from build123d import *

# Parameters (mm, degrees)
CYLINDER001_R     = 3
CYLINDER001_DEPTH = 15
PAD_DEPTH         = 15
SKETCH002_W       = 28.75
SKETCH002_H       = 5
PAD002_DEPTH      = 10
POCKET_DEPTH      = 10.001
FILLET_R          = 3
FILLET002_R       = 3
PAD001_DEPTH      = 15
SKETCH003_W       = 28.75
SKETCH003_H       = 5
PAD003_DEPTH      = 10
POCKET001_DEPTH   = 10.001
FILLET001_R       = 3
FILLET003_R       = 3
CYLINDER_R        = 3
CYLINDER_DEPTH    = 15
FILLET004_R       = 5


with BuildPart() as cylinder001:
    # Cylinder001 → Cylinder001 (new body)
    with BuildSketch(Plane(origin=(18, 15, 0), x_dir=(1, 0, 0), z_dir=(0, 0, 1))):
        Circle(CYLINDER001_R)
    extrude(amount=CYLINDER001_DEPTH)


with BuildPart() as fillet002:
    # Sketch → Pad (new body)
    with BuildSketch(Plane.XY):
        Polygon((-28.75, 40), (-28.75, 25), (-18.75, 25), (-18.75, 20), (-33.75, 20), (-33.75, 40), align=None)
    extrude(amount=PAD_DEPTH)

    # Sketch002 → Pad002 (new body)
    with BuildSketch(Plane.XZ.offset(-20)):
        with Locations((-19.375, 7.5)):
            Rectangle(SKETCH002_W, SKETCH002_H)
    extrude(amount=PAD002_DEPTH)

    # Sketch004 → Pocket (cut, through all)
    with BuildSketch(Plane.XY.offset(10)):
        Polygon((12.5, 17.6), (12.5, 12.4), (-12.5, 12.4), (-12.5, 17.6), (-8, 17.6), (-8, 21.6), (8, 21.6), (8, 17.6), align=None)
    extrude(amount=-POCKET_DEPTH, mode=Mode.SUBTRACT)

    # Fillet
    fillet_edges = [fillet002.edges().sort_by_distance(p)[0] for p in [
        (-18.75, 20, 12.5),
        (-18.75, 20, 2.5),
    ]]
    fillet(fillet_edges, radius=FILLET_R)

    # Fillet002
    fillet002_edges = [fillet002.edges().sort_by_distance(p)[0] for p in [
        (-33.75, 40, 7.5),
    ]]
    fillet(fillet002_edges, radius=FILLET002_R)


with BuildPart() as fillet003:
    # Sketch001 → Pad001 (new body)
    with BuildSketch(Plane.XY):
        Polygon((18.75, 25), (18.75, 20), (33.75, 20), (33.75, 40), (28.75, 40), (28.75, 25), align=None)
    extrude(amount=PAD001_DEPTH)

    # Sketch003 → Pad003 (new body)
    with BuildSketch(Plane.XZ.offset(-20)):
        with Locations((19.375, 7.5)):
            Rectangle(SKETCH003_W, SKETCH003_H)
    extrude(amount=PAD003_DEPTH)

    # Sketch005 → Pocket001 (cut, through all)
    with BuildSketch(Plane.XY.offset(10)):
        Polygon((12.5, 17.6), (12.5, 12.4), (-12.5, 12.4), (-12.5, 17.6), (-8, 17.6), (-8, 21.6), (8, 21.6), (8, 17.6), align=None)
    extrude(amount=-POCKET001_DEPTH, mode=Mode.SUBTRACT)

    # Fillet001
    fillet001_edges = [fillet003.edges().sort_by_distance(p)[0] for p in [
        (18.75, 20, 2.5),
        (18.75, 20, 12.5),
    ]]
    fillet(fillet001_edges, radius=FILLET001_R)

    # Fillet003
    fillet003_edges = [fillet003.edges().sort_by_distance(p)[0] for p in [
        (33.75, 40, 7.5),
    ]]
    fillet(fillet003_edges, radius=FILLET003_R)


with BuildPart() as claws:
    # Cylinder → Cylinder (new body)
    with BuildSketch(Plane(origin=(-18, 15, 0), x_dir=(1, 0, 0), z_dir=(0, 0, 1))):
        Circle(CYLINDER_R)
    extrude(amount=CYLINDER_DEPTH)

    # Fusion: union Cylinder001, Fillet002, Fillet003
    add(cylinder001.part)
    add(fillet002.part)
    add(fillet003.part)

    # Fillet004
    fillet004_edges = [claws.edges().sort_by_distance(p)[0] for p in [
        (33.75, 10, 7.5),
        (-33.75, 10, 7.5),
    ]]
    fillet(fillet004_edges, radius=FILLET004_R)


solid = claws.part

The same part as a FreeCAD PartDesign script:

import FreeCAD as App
import Part
import Sketcher

V = App.Vector
Q = App.Units.Quantity


def edges_at(feature, points):
    """Names of the edges that pass closest to the given points."""
    edges = feature.Shape.Edges
    near = lambda p: min(range(len(edges)), key=lambda i: edges[i].distToShape(Part.Vertex(*p))[0])
    return sorted({f"Edge{near(p) + 1}" for p in points})


def add_polygon(sketch, points):
    """Adds a closed chain of lines whose ends are joined by coincident constraints."""
    first, n = sketch.GeometryCount, len(points)
    for a, b in zip(points, points[1:] + points[:1]):
        sketch.addGeometry(Part.LineSegment(App.Vector(*a, 0), App.Vector(*b, 0)), False)
    for i in range(n):
        sketch.addConstraint(Sketcher.Constraint("Coincident", first + i, 2, first + (i + 1) % n, 1))

doc = App.newDocument("Part")
body = doc.addObject("PartDesign::Body", "Body")

sketch1 = body.newObject("Sketcher::SketchObject", "Sketch")
sketch1.AttachmentSupport = (doc.getObject("XY_Plane"), [""])
sketch1.MapMode = "FlatFace"
sketch1.addGeometry(Part.Circle(V(18, 15, 0), V(0, 0, 1), 3), False)
sketch1.addConstraint(Sketcher.Constraint("Diameter", 0, Q("6 mm")))
sketch1.addConstraint(Sketcher.Constraint("DistanceX", -1, 1, 0, 3, Q("18 mm")))
sketch1.addConstraint(Sketcher.Constraint("DistanceY", -1, 1, 0, 3, Q("15 mm")))
pad1 = body.newObject("PartDesign::Pad", "Pad")
pad1.Profile = sketch1
pad1.Length = 15
body2 = doc.addObject("PartDesign::Body", "Body001")

sketch2 = body2.newObject("Sketcher::SketchObject", "Sketch001")
sketch2.AttachmentSupport = (doc.getObject("XY_Plane001"), [""])
sketch2.MapMode = "FlatFace"
add_polygon(sketch2, [(-28.75, 25), (-28.75, 40), (-33.75, 40), (-33.75, 20), (-18.75, 20), (-18.75, 25)])
sketch2.addConstraint(Sketcher.Constraint("Vertical", 0))
sketch2.addConstraint(Sketcher.Constraint("Horizontal", 1))
sketch2.addConstraint(Sketcher.Constraint("Vertical", 2))
sketch2.addConstraint(Sketcher.Constraint("Horizontal", 3))
sketch2.addConstraint(Sketcher.Constraint("Vertical", 4))
sketch2.addConstraint(Sketcher.Constraint("Horizontal", 5))
sketch2.addConstraint(Sketcher.Constraint("Equal", 3, 0))
sketch2.addConstraint(Sketcher.Constraint("Equal", 1, 4))
sketch2.addConstraint(Sketcher.Constraint("DistanceX", 1, 2, 1, 1, Q("5 mm")))
sketch2.addConstraint(Sketcher.Constraint("DistanceX", 3, 1, 3, 2, Q("15 mm")))
sketch2.addConstraint(Sketcher.Constraint("DistanceY", -1, 1, 0, 2, Q("40 mm")))
sketch2.addConstraint(Sketcher.Constraint("DistanceX", 0, 2, -1, 1, Q("28.75 mm")))
pad2 = body2.newObject("PartDesign::Pad", "Pad001")
pad2.Profile = sketch2
pad2.Length = 15

sketch3 = body2.newObject("Sketcher::SketchObject", "Sketch002")
sketch3.AttachmentSupport = (doc.getObject("XZ_Plane001"), [""])
sketch3.MapMode = "FlatFace"
sketch3.AttachmentOffset = App.Placement(V(0, 0, -20), App.Rotation())
add_polygon(sketch3, [(-33.75, 10), (-33.75, 5), (-5, 5), (-5, 10)])
sketch3.addConstraint(Sketcher.Constraint("Vertical", 0))
sketch3.addConstraint(Sketcher.Constraint("Horizontal", 1))
sketch3.addConstraint(Sketcher.Constraint("Vertical", 2))
sketch3.addConstraint(Sketcher.Constraint("Horizontal", 3))
sketch3.addConstraint(Sketcher.Constraint("DistanceY", 0, 2, 0, 1, Q("5 mm")))
sketch3.addConstraint(Sketcher.Constraint("DistanceY", -1, 1, 0, 2, Q("5 mm")))
sketch3.addConstraint(Sketcher.Constraint("DistanceX", 1, 2, -1, 1, Q("5 mm")))
sketch3.addConstraint(Sketcher.Constraint("DistanceX", 1, 1, 1, 2, Q("28.75 mm")))
pad3 = body2.newObject("PartDesign::Pad", "Pad002")
pad3.Profile = sketch3
pad3.Length = 10

sketch4 = body2.newObject("Sketcher::SketchObject", "Sketch003")
sketch4.AttachmentSupport = (doc.getObject("XY_Plane001"), [""])
sketch4.MapMode = "FlatFace"
sketch4.AttachmentOffset = App.Placement(V(0, 0, 10), App.Rotation())
add_polygon(sketch4, [(12.5, 12.4), (12.5, 17.6), (8, 17.6), (8, 21.6), (-8, 21.6), (-8, 17.6), (-12.5, 17.6), (-12.5, 12.4)])
sketch4.addConstraint(Sketcher.Constraint("Vertical", 0))
sketch4.addConstraint(Sketcher.Constraint("Horizontal", 1))
sketch4.addConstraint(Sketcher.Constraint("Vertical", 2))
sketch4.addConstraint(Sketcher.Constraint("Horizontal", 3))
sketch4.addConstraint(Sketcher.Constraint("Vertical", 4))
sketch4.addConstraint(Sketcher.Constraint("Horizontal", 5))
sketch4.addConstraint(Sketcher.Constraint("Vertical", 6))
sketch4.addConstraint(Sketcher.Constraint("Horizontal", 7))
sketch4.addConstraint(Sketcher.Constraint("Symmetric", 1, 2, 4, 2, -2))
sketch4.addConstraint(Sketcher.Constraint("Equal", 1, 5))
sketch4.addConstraint(Sketcher.Constraint("DistanceX", 3, 2, 3, 1, Q("16 mm")))
sketch4.addConstraint(Sketcher.Constraint("DistanceX", 7, 1, 7, 2, Q("25 mm")))
sketch4.addConstraint(Sketcher.Constraint("DistanceY", 2, 1, 2, 2, Q("4 mm")))
sketch4.addConstraint(Sketcher.Constraint("DistanceY", 0, 1, 0, 2, Q("5.2 mm")))
sketch4.addConstraint(Sketcher.Constraint("DistanceY", -1, 1, 0, 2, Q("17.6 mm")))
pocket1 = body2.newObject("PartDesign::Pocket", "Pocket")
pocket1.Profile = sketch4
pocket1.Type = "ThroughAll"
doc.recompute()

fillet = body2.newObject("PartDesign::Fillet", "Fillet")
fillet.Base = (pocket1, edges_at(pocket1, [(-18.75, 20, 12.5), (-18.75, 20, 2.5)]))
fillet.Radius = 3
doc.recompute()

fillet2 = body2.newObject("PartDesign::Fillet", "Fillet001")
fillet2.Base = (fillet, edges_at(fillet, [(-33.75, 40, 7.5)]))
fillet2.Radius = 3
body3 = doc.addObject("PartDesign::Body", "Body002")

sketch5 = body3.newObject("Sketcher::SketchObject", "Sketch004")
sketch5.AttachmentSupport = (doc.getObject("XY_Plane002"), [""])
sketch5.MapMode = "FlatFace"
add_polygon(sketch5, [(18.75, 25), (18.75, 20), (33.75, 20), (33.75, 40), (28.75, 40), (28.75, 25)])
sketch5.addConstraint(Sketcher.Constraint("Vertical", 0))
sketch5.addConstraint(Sketcher.Constraint("Horizontal", 1))
sketch5.addConstraint(Sketcher.Constraint("Vertical", 2))
sketch5.addConstraint(Sketcher.Constraint("Horizontal", 3))
sketch5.addConstraint(Sketcher.Constraint("Vertical", 4))
sketch5.addConstraint(Sketcher.Constraint("Horizontal", 5))
sketch5.addConstraint(Sketcher.Constraint("Equal", 3, 0))
sketch5.addConstraint(Sketcher.Constraint("Equal", 1, 4))
sketch5.addConstraint(Sketcher.Constraint("DistanceX", 1, 1, 1, 2, Q("15 mm")))
sketch5.addConstraint(Sketcher.Constraint("DistanceX", 3, 2, 3, 1, Q("5 mm")))
sketch5.addConstraint(Sketcher.Constraint("DistanceY", -1, 1, 0, 2, Q("20 mm")))
sketch5.addConstraint(Sketcher.Constraint("DistanceX", -1, 1, 0, 2, Q("18.75 mm")))
pad4 = body3.newObject("PartDesign::Pad", "Pad003")
pad4.Profile = sketch5
pad4.Length = 15

sketch6 = body3.newObject("Sketcher::SketchObject", "Sketch005")
sketch6.AttachmentSupport = (doc.getObject("XZ_Plane002"), [""])
sketch6.MapMode = "FlatFace"
sketch6.AttachmentOffset = App.Placement(V(0, 0, -20), App.Rotation())
add_polygon(sketch6, [(5, 10), (5, 5), (33.75, 5), (33.75, 10)])
sketch6.addConstraint(Sketcher.Constraint("Vertical", 0))
sketch6.addConstraint(Sketcher.Constraint("Horizontal", 1))
sketch6.addConstraint(Sketcher.Constraint("Vertical", 2))
sketch6.addConstraint(Sketcher.Constraint("Horizontal", 3))
sketch6.addConstraint(Sketcher.Constraint("DistanceY", 0, 2, 0, 1, Q("5 mm")))
sketch6.addConstraint(Sketcher.Constraint("DistanceX", -1, 1, 0, 2, Q("5 mm")))
sketch6.addConstraint(Sketcher.Constraint("DistanceY", -1, 1, 0, 2, Q("5 mm")))
sketch6.addConstraint(Sketcher.Constraint("DistanceX", 1, 1, 1, 2, Q("28.75 mm")))
pad5 = body3.newObject("PartDesign::Pad", "Pad004")
pad5.Profile = sketch6
pad5.Length = 10

sketch7 = body3.newObject("Sketcher::SketchObject", "Sketch006")
sketch7.AttachmentSupport = (doc.getObject("XY_Plane002"), [""])
sketch7.MapMode = "FlatFace"
sketch7.AttachmentOffset = App.Placement(V(0, 0, 10), App.Rotation())
add_polygon(sketch7, [(12.5, 12.4), (12.5, 17.6), (8, 17.6), (8, 21.6), (-8, 21.6), (-8, 17.6), (-12.5, 17.6), (-12.5, 12.4)])
sketch7.addConstraint(Sketcher.Constraint("Vertical", 0))
sketch7.addConstraint(Sketcher.Constraint("Horizontal", 1))
sketch7.addConstraint(Sketcher.Constraint("Vertical", 2))
sketch7.addConstraint(Sketcher.Constraint("Horizontal", 3))
sketch7.addConstraint(Sketcher.Constraint("Vertical", 4))
sketch7.addConstraint(Sketcher.Constraint("Horizontal", 5))
sketch7.addConstraint(Sketcher.Constraint("Vertical", 6))
sketch7.addConstraint(Sketcher.Constraint("Horizontal", 7))
sketch7.addConstraint(Sketcher.Constraint("Symmetric", 1, 2, 4, 2, -2))
sketch7.addConstraint(Sketcher.Constraint("Equal", 1, 5))
sketch7.addConstraint(Sketcher.Constraint("DistanceX", 3, 2, 3, 1, Q("16 mm")))
sketch7.addConstraint(Sketcher.Constraint("DistanceX", 7, 1, 7, 2, Q("25 mm")))
sketch7.addConstraint(Sketcher.Constraint("DistanceY", 2, 1, 2, 2, Q("4 mm")))
sketch7.addConstraint(Sketcher.Constraint("DistanceY", 0, 1, 0, 2, Q("5.2 mm")))
sketch7.addConstraint(Sketcher.Constraint("DistanceY", -1, 1, 0, 2, Q("17.6 mm")))
pocket2 = body3.newObject("PartDesign::Pocket", "Pocket001")
pocket2.Profile = sketch7
pocket2.Type = "ThroughAll"
doc.recompute()

fillet3 = body3.newObject("PartDesign::Fillet", "Fillet002")
fillet3.Base = (pocket2, edges_at(pocket2, [(18.75, 20, 2.5), (18.75, 20, 12.5)]))
fillet3.Radius = 3
doc.recompute()

fillet4 = body3.newObject("PartDesign::Fillet", "Fillet003")
fillet4.Base = (fillet3, edges_at(fillet3, [(33.75, 40, 7.5)]))
fillet4.Radius = 3
body4 = doc.addObject("PartDesign::Body", "Body003")
body4.AllowCompound = True

sketch8 = body4.newObject("Sketcher::SketchObject", "Sketch007")
sketch8.AttachmentSupport = (doc.getObject("XY_Plane003"), [""])
sketch8.MapMode = "FlatFace"
sketch8.addGeometry(Part.Circle(V(-18, 15, 0), V(0, 0, 1), 3), False)
sketch8.addConstraint(Sketcher.Constraint("Diameter", 0, Q("6 mm")))
sketch8.addConstraint(Sketcher.Constraint("DistanceX", 0, 3, -1, 1, Q("18 mm")))
sketch8.addConstraint(Sketcher.Constraint("DistanceY", -1, 1, 0, 3, Q("15 mm")))
pad6 = body4.newObject("PartDesign::Pad", "Pad005")
pad6.Profile = sketch8
pad6.Length = 15
doc.recompute()

boolean = body4.newObject("PartDesign::Boolean", "Boolean")
boolean.Type = "Fuse"
boolean.addObjects([body])
doc.recompute()

boolean2 = body4.newObject("PartDesign::Boolean", "Boolean001")
boolean2.Type = "Fuse"
boolean2.addObjects([body2])
doc.recompute()

boolean3 = body4.newObject("PartDesign::Boolean", "Boolean002")
boolean3.Type = "Fuse"
boolean3.addObjects([body3])
doc.recompute()

fillet5 = body4.newObject("PartDesign::Fillet", "Fillet004")
fillet5.Base = (boolean3, edges_at(boolean3, [(33.75, 10, 7.5), (-33.75, 10, 7.5)]))
fillet5.Radius = 5

doc.recompute()
